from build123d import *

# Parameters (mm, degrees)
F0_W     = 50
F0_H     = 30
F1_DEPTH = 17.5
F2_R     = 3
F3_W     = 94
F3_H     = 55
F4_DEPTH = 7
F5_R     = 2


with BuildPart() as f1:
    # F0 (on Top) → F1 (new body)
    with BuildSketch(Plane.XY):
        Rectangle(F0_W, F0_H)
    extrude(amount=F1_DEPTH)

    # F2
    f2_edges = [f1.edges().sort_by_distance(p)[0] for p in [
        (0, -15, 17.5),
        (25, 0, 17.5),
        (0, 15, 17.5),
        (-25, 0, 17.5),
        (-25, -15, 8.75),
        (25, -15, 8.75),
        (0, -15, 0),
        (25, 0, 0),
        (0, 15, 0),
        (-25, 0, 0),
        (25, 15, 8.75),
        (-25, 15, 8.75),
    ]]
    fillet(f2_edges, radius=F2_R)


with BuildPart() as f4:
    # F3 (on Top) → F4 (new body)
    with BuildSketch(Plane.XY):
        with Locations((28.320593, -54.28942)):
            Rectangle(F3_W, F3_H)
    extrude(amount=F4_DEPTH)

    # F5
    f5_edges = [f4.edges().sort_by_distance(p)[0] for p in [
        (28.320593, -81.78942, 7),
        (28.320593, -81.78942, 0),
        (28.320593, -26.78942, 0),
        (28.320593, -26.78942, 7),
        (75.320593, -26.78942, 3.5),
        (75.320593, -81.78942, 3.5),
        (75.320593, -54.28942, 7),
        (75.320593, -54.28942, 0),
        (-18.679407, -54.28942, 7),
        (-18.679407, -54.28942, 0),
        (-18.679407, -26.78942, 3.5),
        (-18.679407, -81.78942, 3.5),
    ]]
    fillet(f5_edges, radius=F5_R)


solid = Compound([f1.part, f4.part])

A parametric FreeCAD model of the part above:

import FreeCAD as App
import Part
import Sketcher
from FreeCAD import Vector
Q = App.Units.Quantity

doc = App.newDocument("Part")
body = doc.addObject("PartDesign::Body", "Body")

# Sketch on XY plane
sketch1 = body.newObject("Sketcher::SketchObject", "Sketch")
sketch1.AttachmentSupport = (doc.getObject("XY_Plane"), [""])
sketch1.MapMode = "FlatFace"
sketch1.addGeometry([
    Part.LineSegment(Vector(-25, 15, 0), Vector(-25, -15, 0)),
    Part.LineSegment(Vector(-25, -15, 0), Vector(25, -15, 0)),
    Part.LineSegment(Vector(25, -15, 0), Vector(25, 15, 0)),
    Part.LineSegment(Vector(25, 15, 0), Vector(-25, 15, 0)),
], False)
sketch1.addConstraint([
    Sketcher.Constraint("Coincident", 0, 2, 1, 1),
    Sketcher.Constraint("Coincident", 1, 2, 2, 1),
    Sketcher.Constraint("Coincident", 2, 2, 3, 1),
    Sketcher.Constraint("Coincident", 3, 2, 0, 1),
    Sketcher.Constraint("Vertical", 0),
    Sketcher.Constraint("Horizontal", 1),
    Sketcher.Constraint("Vertical", 2),
    Sketcher.Constraint("Horizontal", 3),
    Sketcher.Constraint("Symmetric", 0, 2, 2, 2, -1, 1),
    Sketcher.Constraint("DistanceX", 1, 1, 1, 2, Q("50 mm")),
    Sketcher.Constraint("DistanceY", 0, 2, 0, 1, Q("30 mm")),
])
pad1 = body.newObject("PartDesign::Pad", "Pad")
pad1.Profile = sketch1
pad1.Length = 17.5
doc.recompute()

fillet = body.newObject("PartDesign::Fillet", "Fillet")
fillet.Base = (pad1, ["Edge1"])
fillet.UseAllEdges = True
fillet.Radius = 3
body2 = doc.addObject("PartDesign::Body", "Body001")

# Sketch on XY plane
sketch2 = body2.newObject("Sketcher::SketchObject", "Sketch001")
sketch2.AttachmentSupport = (doc.getObject("XY_Plane001"), [""])
sketch2.MapMode = "FlatFace"
sketch2.addGeometry([
    Part.LineSegment(Vector(-19, -27, 0), Vector(-19, -82, 0)),
    Part.LineSegment(Vector(-19, -82, 0), Vector(75, -82, 0)),
    Part.LineSegment(Vector(75, -82, 0), Vector(75, -27, 0)),
    Part.LineSegment(Vector(75, -27, 0), Vector(-19, -27, 0)),
], False)
sketch2.addConstraint([
    Sketcher.Constraint("Coincident", 0, 2, 1, 1),
    Sketcher.Constraint("Coincident", 1, 2, 2, 1),
    Sketcher.Constraint("Coincident", 2, 2, 3, 1),
    Sketcher.Constraint("Coincident", 3, 2, 0, 1),
    Sketcher.Constraint("Vertical", 0),
    Sketcher.Constraint("Horizontal", 1),
    Sketcher.Constraint("Vertical", 2),
    Sketcher.Constraint("Horizontal", 3),
    Sketcher.Constraint("DistanceX", 1, 1, 1, 2, Q("94 mm")),
    Sketcher.Constraint("DistanceY", 0, 2, 0, 1, Q("55 mm")),
    Sketcher.Constraint("DistanceY", 0, 2, -1, 1, Q("81.78942 mm")),
    Sketcher.Constraint("DistanceX", 0, 2, -1, 1, Q("18.679407 mm")),
])
pad2 = body2.newObject("PartDesign::Pad", "Pad001")
pad2.Profile = sketch2
pad2.Length = 7
doc.recompute()

fillet2 = body2.newObject("PartDesign::Fillet", "Fillet001")
fillet2.Base = (pad2, ["Edge1"])
fillet2.UseAllEdges = True
fillet2.Radius = 2

doc.recompute()
